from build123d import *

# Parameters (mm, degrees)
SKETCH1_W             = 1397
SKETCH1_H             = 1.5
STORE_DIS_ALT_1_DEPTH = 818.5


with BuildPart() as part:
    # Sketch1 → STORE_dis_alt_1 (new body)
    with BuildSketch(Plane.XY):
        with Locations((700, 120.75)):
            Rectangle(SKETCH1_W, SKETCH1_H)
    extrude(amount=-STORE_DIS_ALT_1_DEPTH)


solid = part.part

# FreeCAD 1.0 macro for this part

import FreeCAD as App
import Part
import Sketcher
from FreeCAD import Vector
Q = App.Units.Quantity


def add_polygon(sketch, points):
    """Adds a closed chain of lines whose ends are joined by coincident constraints."""
    first, n = sketch.GeometryCount, len(points)
    for a, b in zip(points, points[1:] + points[:1]):
        sketch.addGeometry(Part.LineSegment(App.Vector(*a, 0), App.Vector(*b, 0)), False)
    for i in range(n):
        sketch.addConstraint(Sketcher.Constraint("Coincident", first + i, 2, first + (i + 1) % n, 1))

doc = App.newDocument("Part")
body = doc.addObject("PartDesign::Body", "Body")

# Sketch on XY plane
sketch1 = body.newObject("Sketcher::SketchObject", "Sketch")
sketch1.AttachmentSupport = (doc.getObject("XY_Plane"), [""])
sketch1.MapMode = "FlatFace"
add_polygon(sketch1, [(1.5, 121.5), (1.5, 120), (1398.5, 120), (1398.5, 121.5)])  # lines 0-3
sketch1.addConstraint(Sketcher.Constraint("Vertical", 0))
sketch1.addConstraint(Sketcher.Constraint("Horizontal", 1))
sketch1.addConstraint(Sketcher.Constraint("Vertical", 2))
sketch1.addConstraint(Sketcher.Constraint("Horizontal", 3))
sketch1.addConstraint(Sketcher.Constraint("DistanceX", 1, 1, 1, 2, Q("1397 mm")))
sketch1.addConstraint(Sketcher.Constraint("DistanceY", 0, 2, 0, 1, Q("1.5 mm")))
sketch1.addConstraint(Sketcher.Constraint("DistanceY", -1, 1, 0, 2, Q("120 mm")))
sketch1.addConstraint(Sketcher.Constraint("DistanceX", -1, 1, 0, 2, Q("1.5 mm")))
pad1 = body.newObject("PartDesign::Pad", "Pad")
pad1.Profile = sketch1
pad1.Length = 818.5
pad1.Reversed = True

doc.recompute()
